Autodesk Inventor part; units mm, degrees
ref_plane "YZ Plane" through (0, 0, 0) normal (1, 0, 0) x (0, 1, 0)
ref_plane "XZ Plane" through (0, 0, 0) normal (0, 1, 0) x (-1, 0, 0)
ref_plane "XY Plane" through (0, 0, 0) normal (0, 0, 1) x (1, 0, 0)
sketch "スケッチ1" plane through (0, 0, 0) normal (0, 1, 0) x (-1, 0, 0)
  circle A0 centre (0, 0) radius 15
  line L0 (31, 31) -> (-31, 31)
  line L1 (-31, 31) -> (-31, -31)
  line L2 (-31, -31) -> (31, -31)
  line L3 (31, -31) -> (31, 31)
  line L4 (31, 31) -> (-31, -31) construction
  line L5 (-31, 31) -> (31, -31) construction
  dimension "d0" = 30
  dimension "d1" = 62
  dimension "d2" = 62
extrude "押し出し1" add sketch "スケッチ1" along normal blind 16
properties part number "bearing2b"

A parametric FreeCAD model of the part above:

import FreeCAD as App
import Part
import Sketcher
from FreeCAD import Vector


def add_polygon(sketch, points):
    """Adds a closed chain of lines whose ends are joined by coincident constraints."""
    first, n = sketch.GeometryCount, len(points)
    for a, b in zip(points, points[1:] + points[:1]):
        sketch.addGeometry(Part.LineSegment(App.Vector(*a, 0), App.Vector(*b, 0)), False)
    for i in range(n):
        sketch.addConstraint(Sketcher.Constraint("Coincident", first + i, 2, first + (i + 1) % n, 1))

doc = App.newDocument("Part")
body = doc.addObject("PartDesign::Body", "Body")

# Sketch on XZ plane
sketch1 = doc.addObject("Sketcher::SketchObject", "Sketch")
body.addObject(sketch1)
sketch1.AttachmentSupport = (doc.XZ_Plane, [""])
sketch1.MapMode = "FlatFace"
add_polygon(sketch1, [(-31, -31), (-31, 31), (31, 31), (31, -31)])  # lines 0-3
sketch1.addGeometry(Part.Circle(Vector(0, 0, 0), Vector(0, 0, 1), 15), False)  # 4
sketch1.addConstraint(Sketcher.Constraint("Vertical", 0))
sketch1.addConstraint(Sketcher.Constraint("Horizontal", 1))
sketch1.addConstraint(Sketcher.Constraint("Vertical", 2))
sketch1.addConstraint(Sketcher.Constraint("Horizontal", 3))
sketch1.addConstraint(Sketcher.Constraint("Coincident", 4, 3, -1, 1))
sketch1.addConstraint(Sketcher.Constraint("Symmetric", 0, 2, 2, 2, -1, 1))
sketch1.addConstraint(Sketcher.Constraint("Equal", 3, 0))
sketch1.addConstraint(Sketcher.Constraint("Diameter", 4, 30.0))
sketch1.addConstraint(Sketcher.Constraint("DistanceX", 1, 1, 1, 2, 62.0))
pad1 = doc.addObject("PartDesign::Pad", "Pad")
body.addObject(pad1)
pad1.Profile = sketch1
pad1.Length = 16
pad1.Reversed = True

doc.recompute()
